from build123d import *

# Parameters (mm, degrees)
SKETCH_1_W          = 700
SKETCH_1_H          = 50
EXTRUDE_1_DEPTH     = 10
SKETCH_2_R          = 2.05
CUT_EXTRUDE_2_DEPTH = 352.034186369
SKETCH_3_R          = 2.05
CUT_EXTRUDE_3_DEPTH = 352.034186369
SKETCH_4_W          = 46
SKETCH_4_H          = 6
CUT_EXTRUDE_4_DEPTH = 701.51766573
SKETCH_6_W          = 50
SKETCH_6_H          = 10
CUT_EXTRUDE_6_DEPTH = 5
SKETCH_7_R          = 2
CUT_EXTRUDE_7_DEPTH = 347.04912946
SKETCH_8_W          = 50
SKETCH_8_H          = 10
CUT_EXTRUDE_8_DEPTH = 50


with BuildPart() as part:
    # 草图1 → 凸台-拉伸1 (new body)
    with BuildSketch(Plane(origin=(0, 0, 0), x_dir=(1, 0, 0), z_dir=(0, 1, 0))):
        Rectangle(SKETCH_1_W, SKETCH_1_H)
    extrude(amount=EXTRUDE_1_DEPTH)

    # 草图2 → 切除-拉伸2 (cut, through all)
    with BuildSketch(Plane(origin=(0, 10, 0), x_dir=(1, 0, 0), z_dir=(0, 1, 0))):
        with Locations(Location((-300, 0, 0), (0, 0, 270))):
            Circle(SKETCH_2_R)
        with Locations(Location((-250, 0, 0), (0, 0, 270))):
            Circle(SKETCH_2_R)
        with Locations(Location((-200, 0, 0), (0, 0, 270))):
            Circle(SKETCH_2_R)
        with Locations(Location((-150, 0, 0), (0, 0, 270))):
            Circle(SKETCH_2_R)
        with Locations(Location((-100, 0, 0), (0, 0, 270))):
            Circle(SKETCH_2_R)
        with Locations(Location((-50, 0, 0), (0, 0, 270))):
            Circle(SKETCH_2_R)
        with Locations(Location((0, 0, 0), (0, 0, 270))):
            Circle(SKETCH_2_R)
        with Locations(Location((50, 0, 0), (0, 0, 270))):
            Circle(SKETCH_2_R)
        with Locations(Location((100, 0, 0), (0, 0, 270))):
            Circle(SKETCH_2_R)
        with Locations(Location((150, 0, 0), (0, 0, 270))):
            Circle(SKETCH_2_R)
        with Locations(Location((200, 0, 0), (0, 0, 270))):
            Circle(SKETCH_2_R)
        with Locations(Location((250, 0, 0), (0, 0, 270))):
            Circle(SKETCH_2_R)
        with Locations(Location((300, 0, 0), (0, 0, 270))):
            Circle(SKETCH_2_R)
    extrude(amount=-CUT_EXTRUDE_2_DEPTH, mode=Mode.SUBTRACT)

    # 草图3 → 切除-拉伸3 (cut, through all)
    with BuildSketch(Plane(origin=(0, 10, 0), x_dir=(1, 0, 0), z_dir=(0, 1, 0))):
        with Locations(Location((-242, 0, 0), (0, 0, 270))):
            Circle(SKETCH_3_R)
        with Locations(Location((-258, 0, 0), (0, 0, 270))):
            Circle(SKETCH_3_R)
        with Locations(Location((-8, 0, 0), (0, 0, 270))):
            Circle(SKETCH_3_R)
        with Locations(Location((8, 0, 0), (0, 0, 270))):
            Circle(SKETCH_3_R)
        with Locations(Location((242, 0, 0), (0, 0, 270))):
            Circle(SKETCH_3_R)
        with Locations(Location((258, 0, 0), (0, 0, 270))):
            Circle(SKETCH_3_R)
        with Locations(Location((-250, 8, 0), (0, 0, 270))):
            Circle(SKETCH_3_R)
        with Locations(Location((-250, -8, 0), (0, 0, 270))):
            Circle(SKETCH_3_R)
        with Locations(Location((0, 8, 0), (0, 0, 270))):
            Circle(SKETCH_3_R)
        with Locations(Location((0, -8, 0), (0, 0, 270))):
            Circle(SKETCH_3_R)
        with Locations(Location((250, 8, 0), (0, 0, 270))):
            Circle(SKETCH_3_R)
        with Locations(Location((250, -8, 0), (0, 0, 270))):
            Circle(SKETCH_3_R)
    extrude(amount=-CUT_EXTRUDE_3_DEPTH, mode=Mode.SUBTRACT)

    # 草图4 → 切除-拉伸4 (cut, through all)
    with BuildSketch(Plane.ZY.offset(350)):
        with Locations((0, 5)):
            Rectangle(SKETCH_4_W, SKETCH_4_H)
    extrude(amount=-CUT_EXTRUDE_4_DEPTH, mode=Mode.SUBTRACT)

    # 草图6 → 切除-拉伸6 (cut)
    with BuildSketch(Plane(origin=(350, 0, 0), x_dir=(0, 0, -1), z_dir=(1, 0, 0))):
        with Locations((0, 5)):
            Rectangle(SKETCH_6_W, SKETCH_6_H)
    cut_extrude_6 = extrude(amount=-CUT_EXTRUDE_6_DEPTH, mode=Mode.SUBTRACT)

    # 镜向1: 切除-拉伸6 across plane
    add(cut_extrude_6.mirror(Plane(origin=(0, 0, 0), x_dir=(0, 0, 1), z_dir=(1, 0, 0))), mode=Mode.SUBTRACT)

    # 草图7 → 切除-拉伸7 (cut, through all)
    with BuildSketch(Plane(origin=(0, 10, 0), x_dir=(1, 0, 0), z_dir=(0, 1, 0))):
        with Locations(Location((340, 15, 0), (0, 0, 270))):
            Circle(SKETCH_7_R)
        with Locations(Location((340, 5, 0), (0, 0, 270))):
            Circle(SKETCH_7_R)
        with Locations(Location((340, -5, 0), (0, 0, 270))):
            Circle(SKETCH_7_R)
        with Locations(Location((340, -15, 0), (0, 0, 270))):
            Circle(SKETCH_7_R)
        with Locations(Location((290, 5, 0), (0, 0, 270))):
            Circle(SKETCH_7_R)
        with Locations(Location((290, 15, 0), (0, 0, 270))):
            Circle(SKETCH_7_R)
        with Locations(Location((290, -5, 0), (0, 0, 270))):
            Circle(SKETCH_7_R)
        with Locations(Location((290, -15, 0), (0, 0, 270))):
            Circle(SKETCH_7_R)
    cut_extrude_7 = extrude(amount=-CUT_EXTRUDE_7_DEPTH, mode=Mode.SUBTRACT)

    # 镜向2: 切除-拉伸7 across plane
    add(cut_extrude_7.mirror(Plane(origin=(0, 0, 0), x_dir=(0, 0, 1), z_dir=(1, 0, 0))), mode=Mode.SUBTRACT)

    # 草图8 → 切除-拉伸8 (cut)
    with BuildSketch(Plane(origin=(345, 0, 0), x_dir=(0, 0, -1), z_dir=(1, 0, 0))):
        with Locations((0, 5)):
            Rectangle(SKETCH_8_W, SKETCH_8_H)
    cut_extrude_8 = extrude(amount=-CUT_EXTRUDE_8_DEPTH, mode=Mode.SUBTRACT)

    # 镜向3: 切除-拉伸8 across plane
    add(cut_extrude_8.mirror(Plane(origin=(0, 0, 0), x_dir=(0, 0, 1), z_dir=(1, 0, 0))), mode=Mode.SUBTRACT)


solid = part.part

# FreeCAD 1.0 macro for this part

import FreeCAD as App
import Part
import Sketcher
Q = App.Units.Quantity


def add_polygon(sketch, points):
    """Adds a closed chain of lines whose ends are joined by coincident constraints."""
    first, n = sketch.GeometryCount, len(points)
    for a, b in zip(points, points[1:] + points[:1]):
        sketch.addGeometry(Part.LineSegment(App.Vector(*a, 0), App.Vector(*b, 0)), False)
    for i in range(n):
        sketch.addConstraint(Sketcher.Constraint("Coincident", first + i, 2, first + (i + 1) % n, 1))

doc = App.newDocument("Part")
body = doc.addObject("PartDesign::Body", "Body")

# Sketch on XZ plane
sketch1 = doc.addObject("Sketcher::SketchObject", "Sketch")
body.addObject(sketch1)
sketch1.AttachmentSupport = (doc.XZ_Plane, [""])
sketch1.MapMode = "FlatFace"
add_polygon(sketch1, [(-350, -25), (-350, 25), (350, 25), (350, -25)])  # lines 0-3
sketch1.addConstraint([
    Sketcher.Constraint("Vertical", 0),
    Sketcher.Constraint("Horizontal", 1),
    Sketcher.Constraint("Vertical", 2),
    Sketcher.Constraint("Horizontal", 3),
    Sketcher.Constraint("Symmetric", 0, 2, 2, 2, -1, 1),
    Sketcher.Constraint("DistanceX", 1, 1, 1, 2, Q("700 mm")),
    Sketcher.Constraint("DistanceY", 0, 1, 0, 2, Q("50 mm")),
])
pad1 = doc.addObject("PartDesign::Pad", "Pad")
body.addObject(pad1)
pad1.Profile = sketch1
pad1.Length = 10
pad1.Reversed = True

# Sketch on XZ plane
sketch2 = doc.addObject("Sketcher::SketchObject", "Sketch001")
body.addObject(sketch2)
sketch2.AttachmentSupport = (doc.XZ_Plane, [""])
sketch2.MapMode = "FlatFace"
sketch2.AttachmentOffset = App.Placement(App.Vector(0, 0, -10), App.Rotation())
sketch2.addGeometry([
    Part.Circle(App.Vector(-300, 0, 0), App.Vector(0, 0, 1), 2),  # 0
    Part.Circle(App.Vector(-250, 0, 0), App.Vector(0, 0, 1), 2),  # 1
    Part.Circle(App.Vector(-200, 0, 0), App.Vector(0, 0, 1), 2),  # 2
    Part.Circle(App.Vector(-150, 0, 0), App.Vector(0, 0, 1), 2),  # 3
    Part.Circle(App.Vector(-100, 0, 0), App.Vector(0, 0, 1), 2),  # 4
    Part.Circle(App.Vector(-50, 0, 0), App.Vector(0, 0, 1), 2),  # 5
    Part.Circle(App.Vector(0, 0, 0), App.Vector(0, 0, 1), 2),  # 6
    Part.Circle(App.Vector(50, 0, 0), App.Vector(0, 0, 1), 2),  # 7
    Part.Circle(App.Vector(100, 0, 0), App.Vector(0, 0, 1), 2),  # 8
    Part.Circle(App.Vector(150, 0, 0), App.Vector(0, 0, 1), 2),  # 9
    Part.Circle(App.Vector(200, 0, 0), App.Vector(0, 0, 1), 2),  # 10
    Part.Circle(App.Vector(250, 0, 0), App.Vector(0, 0, 1), 2),  # 11
    Part.Circle(App.Vector(300, 0, 0), App.Vector(0, 0, 1), 2),  # 12
], False)
sketch2.addConstraint([
    Sketcher.Constraint("Coincident", 6, 3, -1, 1),
    Sketcher.Constraint("Equal", 0, 1),
    Sketcher.Constraint("Equal", 1, 2),
    Sketcher.Constraint("Equal", 2, 3),
    Sketcher.Constraint("Equal", 3, 4),
    Sketcher.Constraint("Equal", 4, 5),
    Sketcher.Constraint("Equal", 5, 6),
    Sketcher.Constraint("Equal", 6, 7),
    Sketcher.Constraint("Equal", 7, 8),
    Sketcher.Constraint("Equal", 8, 9),
    Sketcher.Constraint("Equal", 9, 10),
    Sketcher.Constraint("Equal", 10, 11),
    Sketcher.Constraint("Equal", 11, 12),
    Sketcher.Constraint("Symmetric", 5, 3, 7, 3, -1, 1),
    Sketcher.Constraint("Symmetric", 4, 3, 8, 3, -1, 1),
    Sketcher.Constraint("Symmetric", 3, 3, 9, 3, -1, 1),
    Sketcher.Constraint("Symmetric", 2, 3, 10, 3, -1, 1),
    Sketcher.Constraint("Symmetric", 1, 3, 11, 3, -1, 1),
    Sketcher.Constraint("Symmetric", 0, 3, 12, 3, -1, 1),
    Sketcher.Constraint("PointOnObject", 0, 3, -1),
    Sketcher.Constraint("PointOnObject", 1, 3, -1),
    Sketcher.Constraint("PointOnObject", 2, 3, -1),
    Sketcher.Constraint("PointOnObject", 3, 3, -1),
    Sketcher.Constraint("PointOnObject", 4, 3, -1),
    Sketcher.Constraint("PointOnObject", 5, 3, -1),
    Sketcher.Constraint("Diameter", 0, Q("4.1 mm")),
    Sketcher.Constraint("DistanceX", 0, 3, -1, 1, Q("300 mm")),
    Sketcher.Constraint("DistanceX", 1, 3, -1, 1, Q("250 mm")),
    Sketcher.Constraint("DistanceX", 2, 3, -1, 1, Q("200 mm")),
    Sketcher.Constraint("DistanceX", 3, 3, -1, 1, Q("150 mm")),
    Sketcher.Constraint("DistanceX", 4, 3, -1, 1, Q("100 mm")),
    Sketcher.Constraint("DistanceX", 5, 3, -1, 1, Q("50 mm")),
])
pocket1 = doc.addObject("PartDesign::Pocket", "Pocket")
body.addObject(pocket1)
pocket1.Profile = sketch2
pocket1.Type = "ThroughAll"
pocket1.Reversed = True

# Sketch on XZ plane
sketch3 = doc.addObject("Sketcher::SketchObject", "Sketch002")
body.addObject(sketch3)
sketch3.AttachmentSupport = (doc.XZ_Plane, [""])
sketch3.MapMode = "FlatFace"
sketch3.AttachmentOffset = App.Placement(App.Vector(0, 0, -10), App.Rotation())
sketch3.addGeometry([
    Part.Circle(App.Vector(-242, 0, 0), App.Vector(0, 0, 1), 2),  # 0
    Part.Circle(App.Vector(-258, 0, 0), App.Vector(0, 0, 1), 2),  # 1
    Part.Circle(App.Vector(-8, 0, 0), App.Vector(0, 0, 1), 2),  # 2
    Part.Circle(App.Vector(8, 0, 0), App.Vector(0, 0, 1), 2),  # 3
    Part.Circle(App.Vector(242, 0, 0), App.Vector(0, 0, 1), 2),  # 4
    Part.Circle(App.Vector(258, 0, 0), App.Vector(0, 0, 1), 2),  # 5
    Part.Circle(App.Vector(-250, -8, 0), App.Vector(0, 0, 1), 2),  # 6
    Part.Circle(App.Vector(-250, 8, 0), App.Vector(0, 0, 1), 2),  # 7
    Part.Circle(App.Vector(0, -8, 0), App.Vector(0, 0, 1), 2),  # 8
    Part.Circle(App.Vector(0, 8, 0), App.Vector(0, 0, 1), 2),  # 9
    Part.Circle(App.Vector(250, -8, 0), App.Vector(0, 0, 1), 2),  # 10
    Part.Circle(App.Vector(250, 8, 0), App.Vector(0, 0, 1), 2),  # 11
], False)
sketch3.addConstraint([
    Sketcher.Constraint("Equal", 0, 1),
    Sketcher.Constraint("Equal", 1, 2),
    Sketcher.Constraint("Equal", 2, 3),
    Sketcher.Constraint("Equal", 3, 4),
    Sketcher.Constraint("Equal", 4, 5),
    Sketcher.Constraint("Equal", 5, 6),
    Sketcher.Constraint("Equal", 6, 7),
    Sketcher.Constraint("Equal", 7, 8),
    Sketcher.Constraint("Equal", 8, 9),
    Sketcher.Constraint("Equal", 9, 10),
    Sketcher.Constraint("Equal", 10, 11),
    Sketcher.Constraint("Symmetric", 2, 3, 3, 3, -1, 1),
    Sketcher.Constraint("Symmetric", 0, 3, 4, 3, -1, 1),
    Sketcher.Constraint("Symmetric", 1, 3, 5, 3, -1, 1),
    Sketcher.Constraint("Symmetric", 8, 3, 9, 3, -1, 1),
    Sketcher.Constraint("Symmetric", 7, 3, 10, 3, -1, 1),
    Sketcher.Constraint("Symmetric", 6, 3, 11, 3, -1, 1),
    Sketcher.Constraint("Symmetric", 6, 3, 10, 3, -2),
    Sketcher.Constraint("PointOnObject", 0, 3, -1),
    Sketcher.Constraint("PointOnObject", 1, 3, -1),
    Sketcher.Constraint("PointOnObject", 2, 3, -1),
    Sketcher.Constraint("PointOnObject", 8, 3, -2),
    Sketcher.Constraint("Horizontal", 6, 3, 8, 3),
    Sketcher.Constraint("Diameter", 0, Q("4.1 mm")),
    Sketcher.Constraint("DistanceX", 0, 3, -1, 1, Q("242 mm")),
    Sketcher.Constraint("DistanceX", 1, 3, -1, 1, Q("258 mm")),
    Sketcher.Constraint("DistanceX", 2, 3, -1, 1, Q("8 mm")),
    Sketcher.Constraint("DistanceX", 6, 3, -1, 1, Q("250 mm")),
    Sketcher.Constraint("DistanceY", 6, 3, -1, 1, Q("8 mm")),
])
pocket2 = doc.addObject("PartDesign::Pocket", "Pocket001")
body.addObject(pocket2)
pocket2.Profile = sketch3
pocket2.Type = "ThroughAll"
pocket2.Reversed = True

# Sketch on YZ plane
sketch4 = doc.addObject("Sketcher::SketchObject", "Sketch003")
body.addObject(sketch4)
sketch4.AttachmentSupport = (doc.YZ_Plane, [""])
sketch4.MapMode = "FlatFace"
sketch4.AttachmentOffset = App.Placement(App.Vector(0, 0, -350), App.Rotation())
add_polygon(sketch4, [(8, -23), (2, -23), (2, 23), (8, 23)])  # lines 0-3
sketch4.addConstraint([
    Sketcher.Constraint("Horizontal", 0),
    Sketcher.Constraint("Vertical", 1),
    Sketcher.Constraint("Horizontal", 2),
    Sketcher.Constraint("Vertical", 3),
    Sketcher.Constraint("DistanceX", 0, 2, 0, 1, Q("6 mm")),
    Sketcher.Constraint("DistanceY", 1, 1, 1, 2, Q("46 mm")),
    Sketcher.Constraint("DistanceX", -1, 1, 0, 2, Q("2 mm")),
    Sketcher.Constraint("DistanceY", 0, 2, -1, 1, Q("23 mm")),
])
pocket3 = doc.addObject("PartDesign::Pocket", "Pocket002")
body.addObject(pocket3)
pocket3.Profile = sketch4
pocket3.Type = "ThroughAll"
pocket3.Reversed = True

# Sketch on YZ plane
sketch5 = doc.addObject("Sketcher::SketchObject", "Sketch004")
body.addObject(sketch5)
sketch5.AttachmentSupport = (doc.YZ_Plane, [""])
sketch5.MapMode = "FlatFace"
sketch5.AttachmentOffset = App.Placement(App.Vector(0, 0, 350), App.Rotation())
add_polygon(sketch5, [(10, 25), (0, 25), (0, -25), (10, -25)])  # lines 0-3
sketch5.addConstraint([
    Sketcher.Constraint("Horizontal", 0),
    Sketcher.Constraint("Vertical", 1),
    Sketcher.Constraint("Horizontal", 2),
    Sketcher.Constraint("Vertical", 3),
    Sketcher.Constraint("Symmetric", 0, 2, 1, 2, -1, 1),
    Sketcher.Constraint("DistanceX", 0, 2, 0, 1, Q("10 mm")),
    Sketcher.Constraint("DistanceY", 1, 2, 1, 1, Q("50 mm")),
])
pocket4 = doc.addObject("PartDesign::Pocket", "Pocket003")
body.addObject(pocket4)
pocket4.Profile = sketch5
pocket4.Length = 5
doc.recompute()

mirrored = doc.addObject("PartDesign::Mirrored", "Mirrored")
body.addObject(mirrored)
mirrored.Originals = [pocket4]
mirrored.MirrorPlane = (doc.YZ_Plane, [""])
body.Tip = mirrored

# Sketch on XZ plane
sketch6 = doc.addObject("Sketcher::SketchObject", "Sketch005")
body.addObject(sketch6)
sketch6.AttachmentSupport = (doc.XZ_Plane, [""])
sketch6.MapMode = "FlatFace"
sketch6.AttachmentOffset = App.Placement(App.Vector(0, 0, -10), App.Rotation())
sketch6.addGeometry([
    Part.Circle(App.Vector(340, -15, 0), App.Vector(0, 0, 1), 2),  # 0
    Part.Circle(App.Vector(340, -5, 0), App.Vector(0, 0, 1), 2),  # 1
    Part.Circle(App.Vector(340, 5, 0), App.Vector(0, 0, 1), 2),  # 2
    Part.Circle(App.Vector(340, 15, 0), App.Vector(0, 0, 1), 2),  # 3
    Part.Circle(App.Vector(290, -5, 0), App.Vector(0, 0, 1), 2),  # 4
    Part.Circle(App.Vector(290, -15, 0), App.Vector(0, 0, 1), 2),  # 5
    Part.Circle(App.Vector(290, 5, 0), App.Vector(0, 0, 1), 2),  # 6
    Part.Circle(App.Vector(290, 15, 0), App.Vector(0, 0, 1), 2),  # 7
], False)
sketch6.addConstraint([
    Sketcher.Constraint("Equal", 0, 1),
    Sketcher.Constraint("Equal", 1, 2),
    Sketcher.Constraint("Equal", 2, 3),
    Sketcher.Constraint("Equal", 3, 4),
    Sketcher.Constraint("Equal", 4, 5),
    Sketcher.Constraint("Equal", 5, 6),
    Sketcher.Constraint("Equal", 6, 7),
    Sketcher.Constraint("Symmetric", 1, 3, 2, 3, -1),
    Sketcher.Constraint("Symmetric", 0, 3, 3, 3, -1),
    Sketcher.Constraint("Symmetric", 4, 3, 6, 3, -1),
    Sketcher.Constraint("Symmetric", 5, 3, 7, 3, -1),
    Sketcher.Constraint("Horizontal", 1, 3, 4, 3),
    Sketcher.Constraint("Horizontal", 0, 3, 5, 3),
    Sketcher.Constraint("Vertical", 0, 3, 1, 3),
    Sketcher.Constraint("Vertical", 4, 3, 5, 3),
    Sketcher.Constraint("Diameter", 0, Q("4 mm")),
    Sketcher.Constraint("DistanceX", -1, 1, 0, 3, Q("340 mm")),
    Sketcher.Constraint("DistanceY", 0, 3, -1, 1, Q("15 mm")),
    Sketcher.Constraint("DistanceY", 1, 3, -1, 1, Q("5 mm")),
    Sketcher.Constraint("DistanceX", -1, 1, 4, 3, Q("290 mm")),
])
pocket5 = doc.addObject("PartDesign::Pocket", "Pocket004")
body.addObject(pocket5)
pocket5.Profile = sketch6
pocket5.Type = "ThroughAll"
pocket5.Reversed = True
doc.recompute()

mirrored2 = doc.addObject("PartDesign::Mirrored", "Mirrored001")
body.addObject(mirrored2)
mirrored2.Originals = [pocket5]
mirrored2.MirrorPlane = (doc.YZ_Plane, [""])
body.Tip = mirrored2

# Sketch on YZ plane
sketch7 = doc.addObject("Sketcher::SketchObject", "Sketch006")
body.addObject(sketch7)
sketch7.AttachmentSupport = (doc.YZ_Plane, [""])
sketch7.MapMode = "FlatFace"
sketch7.AttachmentOffset = App.Placement(App.Vector(0, 0, 345), App.Rotation())
add_polygon(sketch7, [(10, 25), (0, 25), (0, -25), (10, -25)])  # lines 0-3
sketch7.addConstraint([
    Sketcher.Constraint("Horizontal", 0),
    Sketcher.Constraint("Vertical", 1),
    Sketcher.Constraint("Horizontal", 2),
    Sketcher.Constraint("Vertical", 3),
    Sketcher.Constraint("Symmetric", 0, 2, 1, 2, -1, 1),
    Sketcher.Constraint("DistanceX", 0, 2, 0, 1, Q("10 mm")),
    Sketcher.Constraint("DistanceY", 1, 2, 1, 1, Q("50 mm")),
])
pocket6 = doc.addObject("PartDesign::Pocket", "Pocket005")
body.addObject(pocket6)
pocket6.Profile = sketch7
pocket6.Length = 50
doc.recompute()

mirrored3 = doc.addObject("PartDesign::Mirrored", "Mirrored002")
body.addObject(mirrored3)
mirrored3.Originals = [pocket6]
mirrored3.MirrorPlane = (doc.YZ_Plane, [""])
body.Tip = mirrored3

doc.recompute()
